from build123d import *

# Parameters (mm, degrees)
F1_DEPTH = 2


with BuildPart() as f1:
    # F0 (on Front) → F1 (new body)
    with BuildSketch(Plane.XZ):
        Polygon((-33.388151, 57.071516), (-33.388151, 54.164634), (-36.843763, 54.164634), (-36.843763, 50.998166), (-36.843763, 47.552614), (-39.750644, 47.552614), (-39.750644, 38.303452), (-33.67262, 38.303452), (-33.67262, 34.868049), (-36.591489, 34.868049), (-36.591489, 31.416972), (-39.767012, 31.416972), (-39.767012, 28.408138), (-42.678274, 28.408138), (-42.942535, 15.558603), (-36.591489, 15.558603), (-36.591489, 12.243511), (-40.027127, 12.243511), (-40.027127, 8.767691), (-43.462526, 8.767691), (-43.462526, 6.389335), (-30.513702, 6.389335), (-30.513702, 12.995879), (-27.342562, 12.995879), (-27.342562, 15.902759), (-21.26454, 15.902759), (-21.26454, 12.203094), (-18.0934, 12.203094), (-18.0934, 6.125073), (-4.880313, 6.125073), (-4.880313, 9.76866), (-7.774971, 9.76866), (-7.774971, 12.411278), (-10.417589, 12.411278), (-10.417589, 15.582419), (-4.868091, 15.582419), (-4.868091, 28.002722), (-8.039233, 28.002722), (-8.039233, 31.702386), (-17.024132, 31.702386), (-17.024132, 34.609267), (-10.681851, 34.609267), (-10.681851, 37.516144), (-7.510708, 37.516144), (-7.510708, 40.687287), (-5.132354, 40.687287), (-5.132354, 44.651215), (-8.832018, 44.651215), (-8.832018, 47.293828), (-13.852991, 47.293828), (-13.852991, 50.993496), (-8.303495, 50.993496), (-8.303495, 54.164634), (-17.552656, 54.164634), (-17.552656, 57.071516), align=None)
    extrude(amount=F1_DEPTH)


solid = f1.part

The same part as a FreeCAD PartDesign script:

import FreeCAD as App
import Part
import Sketcher
from FreeCAD import Vector

doc = App.newDocument("Part")
body = doc.addObject("PartDesign::Body", "Body")

sketch1 = body.newObject("Sketcher::SketchObject", "Sketch")
sketch1.AttachmentSupport = (doc.getObject("XZ_Plane"), [""])
sketch1.MapMode = "FlatFace"
sketch1.addGeometry([
    Part.LineSegment(Vector(-33.4, 57.1, 0), Vector(-33.4, 54.2, 0)),
    Part.LineSegment(Vector(-33.4, 54.2, 0), Vector(-36.8, 54.2, 0)),
    Part.LineSegment(Vector(-36.8, 54.2, 0), Vector(-36.8, 47.6, 0)),
    Part.LineSegment(Vector(-36.8, 47.6, 0), Vector(-39.8, 47.6, 0)),
    Part.LineSegment(Vector(-39.8, 47.6, 0), Vector(-39.8, 38.3, 0)),
    Part.LineSegment(Vector(-39.8, 38.3, 0), Vector(-33.7, 38.3, 0)),
    Part.LineSegment(Vector(-33.7, 38.3, 0), Vector(-33.7, 34.9, 0)),
    Part.LineSegment(Vector(-33.7, 34.9, 0), Vector(-36.6, 34.9, 0)),
    Part.LineSegment(Vector(-36.6, 34.9, 0), Vector(-36.6, 31.4, 0)),
    Part.LineSegment(Vector(-36.6, 31.4, 0), Vector(-39.8, 31.4, 0)),
    Part.LineSegment(Vector(-39.8, 31.4, 0), Vector(-39.8, 28.4, 0)),
    Part.LineSegment(Vector(-39.8, 28.4, 0), Vector(-42.7, 28.4, 0)),
    Part.LineSegment(Vector(-42.7, 28.4, 0), Vector(-42.9, 15.6, 0)),
    Part.LineSegment(Vector(-42.9, 15.6, 0), Vector(-36.6, 15.6, 0)),
    Part.LineSegment(Vector(-36.6, 15.6, 0), Vector(-36.6, 12.2, 0)),
    Part.LineSegment(Vector(-36.6, 12.2, 0), Vector(-40, 12.2, 0)),
    Part.LineSegment(Vector(-40, 12.2, 0), Vector(-40, 8.8, 0)),
    Part.LineSegment(Vector(-40, 8.8, 0), Vector(-43.5, 8.8, 0)),
    Part.LineSegment(Vector(-43.5, 8.8, 0), Vector(-43.5, 6.4, 0)),
    Part.LineSegment(Vector(-43.5, 6.4, 0), Vector(-30.5, 6.4, 0)),
    Part.LineSegment(Vector(-30.5, 6.4, 0), Vector(-30.5, 13, 0)),
    Part.LineSegment(Vector(-30.5, 13, 0), Vector(-27.3, 13, 0)),
    Part.LineSegment(Vector(-27.3, 13, 0), Vector(-27.3, 15.9, 0)),
    Part.LineSegment(Vector(-27.3, 15.9, 0), Vector(-21.3, 15.9, 0)),
    Part.LineSegment(Vector(-21.3, 15.9, 0), Vector(-21.3, 12.2, 0)),
    Part.LineSegment(Vector(-21.3, 12.2, 0), Vector(-18.1, 12.2, 0)),
    Part.LineSegment(Vector(-18.1, 12.2, 0), Vector(-18.1, 6.1, 0)),
    Part.LineSegment(Vector(-18.1, 6.1, 0), Vector(-4.9, 6.1, 0)),
    Part.LineSegment(Vector(-4.9, 6.1, 0), Vector(-4.9, 9.8, 0)),
    Part.LineSegment(Vector(-4.9, 9.8, 0), Vector(-7.8, 9.8, 0)),
    Part.LineSegment(Vector(-7.8, 9.8, 0), Vector(-7.8, 12.4, 0)),
    Part.LineSegment(Vector(-7.8, 12.4, 0), Vector(-10.4, 12.4, 0)),
    Part.LineSegment(Vector(-10.4, 12.4, 0), Vector(-10.4, 15.6, 0)),
    Part.LineSegment(Vector(-10.4, 15.6, 0), Vector(-4.9, 15.6, 0)),
    Part.LineSegment(Vector(-4.9, 15.6, 0), Vector(-4.9, 28, 0)),
    Part.LineSegment(Vector(-4.9, 28, 0), Vector(-8, 28, 0)),
    Part.LineSegment(Vector(-8, 28, 0), Vector(-8, 31.7, 0)),
    Part.LineSegment(Vector(-8, 31.7, 0), Vector(-17, 31.7, 0)),
    Part.LineSegment(Vector(-17, 31.7, 0), Vector(-17, 34.6, 0)),
    Part.LineSegment(Vector(-17, 34.6, 0), Vector(-10.7, 34.6, 0)),
    Part.LineSegment(Vector(-10.7, 34.6, 0), Vector(-10.7, 37.5, 0)),
    Part.LineSegment(Vector(-10.7, 37.5, 0), Vector(-7.5, 37.5, 0)),
    Part.LineSegment(Vector(-7.5, 37.5, 0), Vector(-7.5, 40.7, 0)),
    Part.LineSegment(Vector(-7.5, 40.7, 0), Vector(-5.1, 40.7, 0)),
    Part.LineSegment(Vector(-5.1, 40.7, 0), Vector(-5.1, 44.7, 0)),
    Part.LineSegment(Vector(-5.1, 44.7, 0), Vector(-8.8, 44.7, 0)),
    Part.LineSegment(Vector(-8.8, 44.7, 0), Vector(-8.8, 47.3, 0)),
    Part.LineSegment(Vector(-8.8, 47.3, 0), Vector(-13.9, 47.3, 0)),
    Part.LineSegment(Vector(-13.9, 47.3, 0), Vector(-13.9, 51, 0)),
    Part.LineSegment(Vector(-13.9, 51, 0), Vector(-8.3, 51, 0)),
    Part.LineSegment(Vector(-8.3, 51, 0), Vector(-8.3, 54.2, 0)),
    Part.LineSegment(Vector(-8.3, 54.2, 0), Vector(-17.6, 54.2, 0)),
    Part.LineSegment(Vector(-17.6, 54.2, 0), Vector(-17.6, 57.1, 0)),
    Part.LineSegment(Vector(-17.6, 57.1, 0), Vector(-33.4, 57.1, 0)),
], False)
sketch1.addConstraint([
    Sketcher.Constraint("Coincident", 0, 2, 1, 1),
    Sketcher.Constraint("Coincident", 1, 2, 2, 1),
    Sketcher.Constraint("Coincident", 2, 2, 3, 1),
    Sketcher.Constraint("Coincident", 3, 2, 4, 1),
    Sketcher.Constraint("Coincident", 4, 2, 5, 1),
    Sketcher.Constraint("Coincident", 5, 2, 6, 1),
    Sketcher.Constraint("Coincident", 6, 2, 7, 1),
    Sketcher.Constraint("Coincident", 7, 2, 8, 1),
    Sketcher.Constraint("Coincident", 8, 2, 9, 1),
    Sketcher.Constraint("Coincident", 9, 2, 10, 1),
    Sketcher.Constraint("Coincident", 10, 2, 11, 1),
    Sketcher.Constraint("Coincident", 11, 2, 12, 1),
    Sketcher.Constraint("Coincident", 12, 2, 13, 1),
    Sketcher.Constraint("Coincident", 13, 2, 14, 1),
    Sketcher.Constraint("Coincident", 14, 2, 15, 1),
    Sketcher.Constraint("Coincident", 15, 2, 16, 1),
    Sketcher.Constraint("Coincident", 16, 2, 17, 1),
    Sketcher.Constraint("Coincident", 17, 2, 18, 1),
    Sketcher.Constraint("Coincident", 18, 2, 19, 1),
    Sketcher.Constraint("Coincident", 19, 2, 20, 1),
    Sketcher.Constraint("Coincident", 20, 2, 21, 1),
    Sketcher.Constraint("Coincident", 21, 2, 22, 1),
    Sketcher.Constraint("Coincident", 22, 2, 23, 1),
    Sketcher.Constraint("Coincident", 23, 2, 24, 1),
    Sketcher.Constraint("Coincident", 24, 2, 25, 1),
    Sketcher.Constraint("Coincident", 25, 2, 26, 1),
    Sketcher.Constraint("Coincident", 26, 2, 27, 1),
    Sketcher.Constraint("Coincident", 27, 2, 28, 1),
    Sketcher.Constraint("Coincident", 28, 2, 29, 1),
    Sketcher.Constraint("Coincident", 29, 2, 30, 1),
    Sketcher.Constraint("Coincident", 30, 2, 31, 1),
    Sketcher.Constraint("Coincident", 31, 2, 32, 1),
    Sketcher.Constraint("Coincident", 32, 2, 33, 1),
    Sketcher.Constraint("Coincident", 33, 2, 34, 1),
    Sketcher.Constraint("Coincident", 34, 2, 35, 1),
    Sketcher.Constraint("Coincident", 35, 2, 36, 1),
    Sketcher.Constraint("Coincident", 36, 2, 37, 1),
    Sketcher.Constraint("Coincident", 37, 2, 38, 1),
    Sketcher.Constraint("Coincident", 38, 2, 39, 1),
    Sketcher.Constraint("Coincident", 39, 2, 40, 1),
    Sketcher.Constraint("Coincident", 40, 2, 41, 1),
    Sketcher.Constraint("Coincident", 41, 2, 42, 1),
    Sketcher.Constraint("Coincident", 42, 2, 43, 1),
    Sketcher.Constraint("Coincident", 43, 2, 44, 1),
    Sketcher.Constraint("Coincident", 44, 2, 45, 1),
    Sketcher.Constraint("Coincident", 45, 2, 46, 1),
    Sketcher.Constraint("Coincident", 46, 2, 47, 1),
    Sketcher.Constraint("Coincident", 47, 2, 48, 1),
    Sketcher.Constraint("Coincident", 48, 2, 49, 1),
    Sketcher.Constraint("Coincident", 49, 2, 50, 1),
    Sketcher.Constraint("Coincident", 50, 2, 51, 1),
    Sketcher.Constraint("Coincident", 51, 2, 52, 1),
    Sketcher.Constraint("Coincident", 52, 2, 53, 1),
    Sketcher.Constraint("Coincident", 53, 2, 0, 1),
    Sketcher.Constraint("Vertical", 0),
    Sketcher.Constraint("Horizontal", 1),
    Sketcher.Constraint("Vertical", 2),
    Sketcher.Constraint("Horizontal", 3),
    Sketcher.Constraint("Vertical", 4),
    Sketcher.Constraint("Horizontal", 5),
    Sketcher.Constraint("Vertical", 6),
    Sketcher.Constraint("Horizontal", 7),
    Sketcher.Constraint("Vertical", 8),
    Sketcher.Constraint("Horizontal", 9),
    Sketcher.Constraint("Vertical", 10),
    Sketcher.Constraint("Horizontal", 11),
    Sketcher.Constraint("Horizontal", 13),
    Sketcher.Constraint("Vertical", 14),
    Sketcher.Constraint("Horizontal", 15),
    Sketcher.Constraint("Vertical", 16),
    Sketcher.Constraint("Horizontal", 17),
    Sketcher.Constraint("Vertical", 18),
    Sketcher.Constraint("Horizontal", 19),
    Sketcher.Constraint("Vertical", 20),
    Sketcher.Constraint("Horizontal", 21),
    Sketcher.Constraint("Vertical", 22),
    Sketcher.Constraint("Horizontal", 23),
    Sketcher.Constraint("Vertical", 24),
    Sketcher.Constraint("Horizontal", 25),
    Sketcher.Constraint("Vertical", 26),
    Sketcher.Constraint("Horizontal", 27),
    Sketcher.Constraint("Vertical", 28),
    Sketcher.Constraint("Horizontal", 29),
    Sketcher.Constraint("Vertical", 30),
    Sketcher.Constraint("Horizontal", 31),
    Sketcher.Constraint("Vertical", 32),
    Sketcher.Constraint("Horizontal", 33),
    Sketcher.Constraint("Vertical", 34),
    Sketcher.Constraint("Horizontal", 35),
    Sketcher.Constraint("Vertical", 36),
    Sketcher.Constraint("Horizontal", 37),
    Sketcher.Constraint("Vertical", 38),
    Sketcher.Constraint("Horizontal", 39),
    Sketcher.Constraint("Vertical", 40),
    Sketcher.Constraint("Horizontal", 41),
    Sketcher.Constraint("Vertical", 42),
    Sketcher.Constraint("Horizontal", 43),
    Sketcher.Constraint("Vertical", 44),
    Sketcher.Constraint("Horizontal", 45),
    Sketcher.Constraint("Vertical", 46),
    Sketcher.Constraint("Horizontal", 47),
    Sketcher.Constraint("Vertical", 48),
    Sketcher.Constraint("Horizontal", 49),
    Sketcher.Constraint("Vertical", 50),
    Sketcher.Constraint("Horizontal", 51),
    Sketcher.Constraint("Vertical", 52),
    Sketcher.Constraint("Horizontal", 53),
    Sketcher.Constraint("Horizontal", 1, 2, 50, 2),
    Sketcher.Constraint("Vertical", 8, 2, 13, 2),
    Sketcher.Constraint("Equal", 5, 23),
    Sketcher.Constraint("Equal", 21, 25),
    Sketcher.Constraint("Equal", 25, 35),
    Sketcher.Constraint("Equal", 35, 41),
    Sketcher.Constraint("Equal", 3, 0),
    Sketcher.Constraint("Equal", 51, 4),
    Sketcher.Constraint("Equal", 43, 18),
    Sketcher.Constraint("Equal", 3, 22),
    Sketcher.Constraint("Equal", 45, 24),
    Sketcher.Constraint("Equal", 23, 26),
    Sketcher.Constraint("Equal", 31, 30),
    Sketcher.Constraint("Equal", 41, 32),
    Sketcher.Constraint("Equal", 24, 36),
    Sketcher.Constraint("Equal", 22, 38),
    Sketcher.Constraint("Equal", 41, 42),
    Sketcher.Constraint("Equal", 21, 50),
    Sketcher.Constraint("DistanceX", 17, 2, 17, 1, 3.435399),
    Sketcher.Constraint("DistanceX", 37, 2, 37, 1, 8.984899),
    Sketcher.Constraint("DistanceX", 3, 2, 3, 1, 2.906881),
    Sketcher.Constraint("DistanceX", 7, 2, 7, 1, 2.918869),
    Sketcher.Constraint("DistanceX", 21, 1, 21, 2, 3.17114),
    Sketcher.Constraint("DistanceX", 39, 1, 39, 2, 6.342281),
    Sketcher.Constraint("DistanceX", 51, 2, 51, 1, 9.249161),
    Sketcher.Constraint("DistanceY", 2, 2, 2, 1, 6.61202),
    Sketcher.Constraint("DistanceY", 14, 2, 14, 1, 3.315092),
    Sketcher.Constraint("DistanceY", 16, 2, 16, 1, 3.47582),
    Sketcher.Constraint("DistanceY", 26, 2, 26, 1, 6.078021),
    Sketcher.Constraint("DistanceY", 44, 1, 44, 2, 3.963928),
    Sketcher.Constraint("DistanceY", 48, 1, 48, 2, 3.699668),
    Sketcher.Constraint("DistanceX", 19, 2, -1, 1, 30.513702),
    Sketcher.Constraint("DistanceY", 28, 2, 23, 2, 6.134099),
    Sketcher.Constraint("DistanceY", 36, 2, 42, 2, 8.984901),
    Sketcher.Constraint("DistanceX", 1, 2, 1, 1, 3.455612),
    Sketcher.Constraint("DistanceX", 9, 2, 9, 1, 3.175523),
    Sketcher.Constraint("DistanceX", 11, 2, 11, 1, 2.911262),
    Sketcher.Constraint("DistanceX", 13, 1, 13, 2, 6.351046),
    Sketcher.Constraint("DistanceX", 15, 2, 15, 1, 3.435638),
    Sketcher.Constraint("DistanceX", 19, 1, 19, 2, 12.948824),
    Sketcher.Constraint("DistanceX", 27, 1, 27, 2, 13.213087),
    Sketcher.Constraint("DistanceX", 29, 2, 29, 1, 2.894658),
    Sketcher.Constraint("DistanceX", 31, 2, 31, 1, 2.642618),
    Sketcher.Constraint("DistanceX", 33, 1, 33, 2, 5.549498),
    Sketcher.Constraint("DistanceX", 43, 1, 43, 2, 2.378354),
    Sketcher.Constraint("DistanceX", 45, 2, 45, 1, 3.699664),
    Sketcher.Constraint("DistanceX", 47, 2, 47, 1, 5.020973),
    Sketcher.Constraint("DistanceX", 49, 1, 49, 2, 5.549496),
    Sketcher.Constraint("DistanceY", 6, 2, 6, 1, 3.435403),
    Sketcher.Constraint("DistanceY", 8, 2, 8, 1, 3.451077),
    Sketcher.Constraint("DistanceY", 10, 2, 10, 1, 3.008834),
    Sketcher.Constraint("DistanceY", 20, 1, 20, 2, 6.606544),
    Sketcher.Constraint("DistanceY", 34, 1, 34, 2, 12.420303),
    Sketcher.Constraint("DistanceY", 46, 1, 46, 2, 2.642613),
    Sketcher.Constraint("DistanceY", -1, 1, 6, 2, 34.868049),
])
pad1 = body.newObject("PartDesign::Pad", "Pad")
pad1.Profile = sketch1
pad1.Length = 2

doc.recompute()
